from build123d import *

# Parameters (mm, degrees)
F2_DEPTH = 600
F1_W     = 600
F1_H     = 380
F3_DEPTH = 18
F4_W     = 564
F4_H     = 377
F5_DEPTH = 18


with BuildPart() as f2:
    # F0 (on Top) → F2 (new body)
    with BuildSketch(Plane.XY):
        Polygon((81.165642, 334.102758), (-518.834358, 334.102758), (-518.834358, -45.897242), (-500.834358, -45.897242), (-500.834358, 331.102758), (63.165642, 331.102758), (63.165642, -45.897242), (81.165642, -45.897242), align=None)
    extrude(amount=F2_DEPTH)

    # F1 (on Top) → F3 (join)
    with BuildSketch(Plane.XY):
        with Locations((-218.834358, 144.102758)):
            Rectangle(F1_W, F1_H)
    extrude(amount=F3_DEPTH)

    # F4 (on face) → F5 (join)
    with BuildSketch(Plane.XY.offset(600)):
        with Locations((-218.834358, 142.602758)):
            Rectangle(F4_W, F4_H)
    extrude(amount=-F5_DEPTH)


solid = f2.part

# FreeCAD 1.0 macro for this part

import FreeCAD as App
import Part
import Sketcher
from FreeCAD import Vector

doc = App.newDocument("Part")
body = doc.addObject("PartDesign::Body", "Body")

# Sketch on XY plane
sketch1 = body.newObject("Sketcher::SketchObject", "Sketch")
sketch1.AttachmentSupport = (doc.getObject("XY_Plane"), [""])
sketch1.MapMode = "FlatFace"
sketch1.addGeometry(Part.LineSegment(Vector(81, 334, 0), Vector(-519, 334, 0)), False)
sketch1.addGeometry(Part.LineSegment(Vector(-519, 334, 0), Vector(-519, -46, 0)), False)
sketch1.addGeometry(Part.LineSegment(Vector(-519, -46, 0), Vector(-501, -46, 0)), False)
sketch1.addGeometry(Part.LineSegment(Vector(-501, -46, 0), Vector(-501, 331, 0)), False)
sketch1.addGeometry(Part.LineSegment(Vector(-501, 331, 0), Vector(63, 331, 0)), False)
sketch1.addGeometry(Part.LineSegment(Vector(63, 331, 0), Vector(63, -46, 0)), False)
sketch1.addGeometry(Part.LineSegment(Vector(63, -46, 0), Vector(81, -46, 0)), False)
sketch1.addGeometry(Part.LineSegment(Vector(81, -46, 0), Vector(81, 334, 0)), False)
sketch1.addConstraint(Sketcher.Constraint("Coincident", 0, 2, 1, 1))
sketch1.addConstraint(Sketcher.Constraint("Coincident", 1, 2, 2, 1))
sketch1.addConstraint(Sketcher.Constraint("Coincident", 2, 2, 3, 1))
sketch1.addConstraint(Sketcher.Constraint("Coincident", 3, 2, 4, 1))
sketch1.addConstraint(Sketcher.Constraint("Coincident", 4, 2, 5, 1))
sketch1.addConstraint(Sketcher.Constraint("Coincident", 5, 2, 6, 1))
sketch1.addConstraint(Sketcher.Constraint("Coincident", 6, 2, 7, 1))
sketch1.addConstraint(Sketcher.Constraint("Coincident", 7, 2, 0, 1))
sketch1.addConstraint(Sketcher.Constraint("Horizontal", 0))
sketch1.addConstraint(Sketcher.Constraint("Vertical", 1))
sketch1.addConstraint(Sketcher.Constraint("Horizontal", 2))
sketch1.addConstraint(Sketcher.Constraint("Vertical", 3))
sketch1.addConstraint(Sketcher.Constraint("Horizontal", 4))
sketch1.addConstraint(Sketcher.Constraint("Vertical", 5))
sketch1.addConstraint(Sketcher.Constraint("Horizontal", 6))
sketch1.addConstraint(Sketcher.Constraint("Vertical", 7))
sketch1.addConstraint(Sketcher.Constraint("Horizontal", 2, 2, 5, 2))
sketch1.addConstraint(Sketcher.Constraint("Equal", 2, 6))
sketch1.addConstraint(Sketcher.Constraint("DistanceX", 0, 2, 0, 1, 600.0))
sketch1.addConstraint(Sketcher.Constraint("DistanceX", 2, 1, 2, 2, 18.0))
sketch1.addConstraint(Sketcher.Constraint("DistanceY", 1, 2, 1, 1, 380.0))
sketch1.addConstraint(Sketcher.Constraint("DistanceY", 3, 1, 3, 2, 377.0))
sketch1.addConstraint(Sketcher.Constraint("DistanceX", 0, 2, -1, 1, 518.834358))
sketch1.addConstraint(Sketcher.Constraint("DistanceY", -1, 1, 0, 2, 334.102758))
pad1 = body.newObject("PartDesign::Pad", "Pad")
pad1.Profile = sketch1
pad1.Length = 600

# Sketch on XY plane
sketch2 = body.newObject("Sketcher::SketchObject", "Sketch001")
sketch2.AttachmentSupport = (doc.getObject("XY_Plane"), [""])
sketch2.MapMode = "FlatFace"
sketch2.addGeometry(Part.LineSegment(Vector(-519, 334, 0), Vector(-519, -46, 0)), False)
sketch2.addGeometry(Part.LineSegment(Vector(-519, -46, 0), Vector(81, -46, 0)), False)
sketch2.addGeometry(Part.LineSegment(Vector(81, -46, 0), Vector(81, 334, 0)), False)
sketch2.addGeometry(Part.LineSegment(Vector(81, 334, 0), Vector(-519, 334, 0)), False)
sketch2.addConstraint(Sketcher.Constraint("Coincident", 0, 2, 1, 1))
sketch2.addConstraint(Sketcher.Constraint("Coincident", 1, 2, 2, 1))
sketch2.addConstraint(Sketcher.Constraint("Coincident", 2, 2, 3, 1))
sketch2.addConstraint(Sketcher.Constraint("Coincident", 3, 2, 0, 1))
sketch2.addConstraint(Sketcher.Constraint("Vertical", 0))
sketch2.addConstraint(Sketcher.Constraint("Horizontal", 1))
sketch2.addConstraint(Sketcher.Constraint("Vertical", 2))
sketch2.addConstraint(Sketcher.Constraint("Horizontal", 3))
sketch2.addConstraint(Sketcher.Constraint("DistanceX", 1, 1, 1, 2, 600.0))
sketch2.addConstraint(Sketcher.Constraint("DistanceY", 0, 2, 0, 1, 380.0))
sketch2.addConstraint(Sketcher.Constraint("DistanceX", 0, 2, -1, 1, 518.834358))
sketch2.addConstraint(Sketcher.Constraint("DistanceY", -1, 1, 2, 2, 334.102758))
pad2 = body.newObject("PartDesign::Pad", "Pad001")
pad2.Profile = sketch2
pad2.Length = 18

# Sketch on XY plane
sketch3 = body.newObject("Sketcher::SketchObject", "Sketch002")
sketch3.AttachmentSupport = (doc.getObject("XY_Plane"), [""])
sketch3.MapMode = "FlatFace"
sketch3.AttachmentOffset = App.Placement(Vector(0, 0, 600), App.Rotation())
sketch3.addGeometry(Part.LineSegment(Vector(-501, 331, 0), Vector(-501, -46, 0)), False)
sketch3.addGeometry(Part.LineSegment(Vector(-501, -46, 0), Vector(63, -46, 0)), False)
sketch3.addGeometry(Part.LineSegment(Vector(63, -46, 0), Vector(63, 331, 0)), False)
sketch3.addGeometry(Part.LineSegment(Vector(63, 331, 0), Vector(-501, 331, 0)), False)
sketch3.addConstraint(Sketcher.Constraint("Coincident", 0, 2, 1, 1))
sketch3.addConstraint(Sketcher.Constraint("Coincident", 1, 2, 2, 1))
sketch3.addConstraint(Sketcher.Constraint("Coincident", 2, 2, 3, 1))
sketch3.addConstraint(Sketcher.Constraint("Coincident", 3, 2, 0, 1))
sketch3.addConstraint(Sketcher.Constraint("Vertical", 0))
sketch3.addConstraint(Sketcher.Constraint("Horizontal", 1))
sketch3.addConstraint(Sketcher.Constraint("Vertical", 2))
sketch3.addConstraint(Sketcher.Constraint("Horizontal", 3))
sketch3.addConstraint(Sketcher.Constraint("DistanceX", 1, 1, 1, 2, 564.0))
sketch3.addConstraint(Sketcher.Constraint("DistanceY", 0, 2, 0, 1, 377.0))
sketch3.addConstraint(Sketcher.Constraint("DistanceX", 0, 2, -1, 1, 500.834358))
sketch3.addConstraint(Sketcher.Constraint("DistanceY", -1, 1, 2, 2, 331.102758))
pad3 = body.newObject("PartDesign::Pad", "Pad002")
pad3.Profile = sketch3
pad3.Length = 18
pad3.Reversed = True

doc.recompute()
